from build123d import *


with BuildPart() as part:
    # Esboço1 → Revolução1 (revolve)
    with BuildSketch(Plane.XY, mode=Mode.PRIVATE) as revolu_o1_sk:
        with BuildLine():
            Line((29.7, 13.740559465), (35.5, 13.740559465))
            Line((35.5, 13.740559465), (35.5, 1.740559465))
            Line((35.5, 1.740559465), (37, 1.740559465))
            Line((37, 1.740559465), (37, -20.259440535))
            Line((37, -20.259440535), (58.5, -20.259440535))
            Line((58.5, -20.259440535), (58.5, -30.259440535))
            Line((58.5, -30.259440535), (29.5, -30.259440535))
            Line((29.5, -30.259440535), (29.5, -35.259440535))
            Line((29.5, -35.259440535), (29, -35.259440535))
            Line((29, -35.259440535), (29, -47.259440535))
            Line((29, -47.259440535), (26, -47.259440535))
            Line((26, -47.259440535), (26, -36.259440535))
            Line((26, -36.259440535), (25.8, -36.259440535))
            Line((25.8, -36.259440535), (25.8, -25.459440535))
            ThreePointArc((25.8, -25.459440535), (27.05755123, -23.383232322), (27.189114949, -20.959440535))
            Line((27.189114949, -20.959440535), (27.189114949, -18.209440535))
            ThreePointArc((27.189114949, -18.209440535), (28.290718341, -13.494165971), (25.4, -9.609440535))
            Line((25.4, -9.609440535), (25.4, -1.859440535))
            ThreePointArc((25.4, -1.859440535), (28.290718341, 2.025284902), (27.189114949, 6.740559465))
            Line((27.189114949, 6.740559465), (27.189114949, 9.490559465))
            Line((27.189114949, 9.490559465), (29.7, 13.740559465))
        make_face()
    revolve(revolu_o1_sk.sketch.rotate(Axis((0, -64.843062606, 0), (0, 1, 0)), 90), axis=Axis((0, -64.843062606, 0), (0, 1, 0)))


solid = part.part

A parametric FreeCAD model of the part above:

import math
import FreeCAD as App
import Part
import Sketcher
from FreeCAD import Vector

doc = App.newDocument("Part")
params = doc.addObject("Spreadsheet::Sheet", "Params")
for row, (alias, value) in enumerate([
    ("sketch1_radius", "5 mm"),
    ("sketch1_width", "3 mm"),
    ("sketch1_width2", "29 mm"),
    ("sketch1_height", "11 mm"),
    ("sketch1_height2", "12 mm"),
    ("revolution_angle", "360 deg"),
], start=1):
    params.set(f"A{row}", alias)
    params.set(f"B{row}", "=" + value)
    params.setAlias(f"B{row}", alias)

body = doc.addObject("PartDesign::Body", "Body")

# Sketch on XY plane
sketch1 = body.newObject("Sketcher::SketchObject", "Sketch")
sketch1.AttachmentSupport = (doc.getObject("XY_Plane"), [""])
sketch1.MapMode = "FlatFace"
sketch1.addGeometry([
    Part.LineSegment(Vector(35.5, 13.74, 0), Vector(29.7, 13.74, 0)),  # 0
    Part.LineSegment(Vector(29.7, 13.74, 0), Vector(27.19, 9.49, 0)),  # 1
    Part.LineSegment(Vector(27.19, 9.49, 0), Vector(27.19, 6.74, 0)),  # 2
    Part.ArcOfCircle(Part.Circle(Vector(22.66, 3.2, 0), Vector(0, 0, 1), 5.75), math.radians(-62), math.radians(38)),  # 3
    Part.LineSegment(Vector(25.4, -1.86, 0), Vector(25.4, -9.61, 0)),  # 4
    Part.ArcOfCircle(Part.Circle(Vector(22.66, -14.67, 0), Vector(0, 0, 1), 5.75), math.radians(-38), math.radians(62)),  # 5
    Part.LineSegment(Vector(27.19, -18.21, 0), Vector(27.19, -20.96, 0)),  # 6
    Part.ArcOfCircle(Part.Circle(Vector(22.28, -21.91, 0), Vector(0, 0, 1), 5), math.radians(-45), math.radians(11)),  # 7
    Part.LineSegment(Vector(25.8, -25.46, 0), Vector(25.8, -36.26, 0)),  # 8
    Part.LineSegment(Vector(25.8, -36.26, 0), Vector(26, -36.26, 0)),  # 9
    Part.LineSegment(Vector(26, -36.26, 0), Vector(26, -47.26, 0)),  # 10
    Part.LineSegment(Vector(26, -47.26, 0), Vector(29, -47.26, 0)),  # 11
    Part.LineSegment(Vector(29, -47.26, 0), Vector(29, -35.26, 0)),  # 12
    Part.LineSegment(Vector(29, -35.26, 0), Vector(29.5, -35.26, 0)),  # 13
    Part.LineSegment(Vector(29.5, -35.26, 0), Vector(29.5, -30.26, 0)),  # 14
    Part.LineSegment(Vector(29.5, -30.26, 0), Vector(58.5, -30.26, 0)),  # 15
    Part.LineSegment(Vector(58.5, -30.26, 0), Vector(58.5, -20.26, 0)),  # 16
    Part.LineSegment(Vector(58.5, -20.26, 0), Vector(37, -20.26, 0)),  # 17
    Part.LineSegment(Vector(37, -20.26, 0), Vector(37, 1.74, 0)),  # 18
    Part.LineSegment(Vector(37, 1.74, 0), Vector(35.5, 1.74, 0)),  # 19
    Part.LineSegment(Vector(35.5, 1.74, 0), Vector(35.5, 13.74, 0)),  # 20
], False)
sketch1.addConstraint([
    Sketcher.Constraint("Coincident", 0, 2, 1, 1),
    Sketcher.Constraint("Coincident", 1, 2, 2, 1),
    Sketcher.Constraint("Coincident", 2, 2, 3, 2),
    Sketcher.Constraint("Coincident", 3, 1, 4, 1),
    Sketcher.Constraint("Coincident", 4, 2, 5, 2),
    Sketcher.Constraint("Coincident", 5, 1, 6, 1),
    Sketcher.Constraint("Coincident", 6, 2, 7, 2),
    Sketcher.Constraint("Coincident", 7, 1, 8, 1),
    Sketcher.Constraint("Coincident", 8, 2, 9, 1),
    Sketcher.Constraint("Coincident", 9, 2, 10, 1),
    Sketcher.Constraint("Coincident", 10, 2, 11, 1),
    Sketcher.Constraint("Coincident", 11, 2, 12, 1),
    Sketcher.Constraint("Coincident", 12, 2, 13, 1),
    Sketcher.Constraint("Coincident", 13, 2, 14, 1),
    Sketcher.Constraint("Coincident", 14, 2, 15, 1),
    Sketcher.Constraint("Coincident", 15, 2, 16, 1),
    Sketcher.Constraint("Coincident", 16, 2, 17, 1),
    Sketcher.Constraint("Coincident", 17, 2, 18, 1),
    Sketcher.Constraint("Coincident", 18, 2, 19, 1),
    Sketcher.Constraint("Coincident", 19, 2, 20, 1),
    Sketcher.Constraint("Coincident", 20, 2, 0, 1),
    Sketcher.Constraint("Horizontal", 0),
    Sketcher.Constraint("Vertical", 2),
    Sketcher.Constraint("Vertical", 4),
    Sketcher.Constraint("Vertical", 6),
    Sketcher.Constraint("Vertical", 8),
    Sketcher.Constraint("Horizontal", 9),
    Sketcher.Constraint("Vertical", 10),
    Sketcher.Constraint("Horizontal", 11),
    Sketcher.Constraint("Vertical", 12),
    Sketcher.Constraint("Horizontal", 13),
    Sketcher.Constraint("Vertical", 14),
    Sketcher.Constraint("Horizontal", 15),
    Sketcher.Constraint("Vertical", 16),
    Sketcher.Constraint("Horizontal", 17),
    Sketcher.Constraint("Vertical", 18),
    Sketcher.Constraint("Horizontal", 19),
    Sketcher.Constraint("Vertical", 20),
    Sketcher.Constraint("Equal", 3, 5),
    Sketcher.Constraint("Vertical", 3, 3, 5, 3),
    Sketcher.Constraint("Vertical", 2, 2, 5, 1),
    Sketcher.Constraint("Equal", 2, 6),
    Sketcher.Constraint("Equal", 12, 20),
    Sketcher.Constraint("Radius", 7, 5.0),
    Sketcher.Constraint("DistanceX", 11, 1, 11, 2, 3.0),
    Sketcher.Constraint("DistanceX", 15, 1, 15, 2, 29.0),
    Sketcher.Constraint("DistanceY", 10, 2, 10, 1, 11.0),
    Sketcher.Constraint("DistanceY", 12, 1, 12, 2, 12.0),
    Sketcher.Constraint("DistanceY", 14, 1, 14, 2, 5.0),
    Sketcher.Constraint("DistanceY", 16, 1, 16, 2, 10.0),
    Sketcher.Constraint("DistanceY", 18, 1, 18, 2, 22.0),
    Sketcher.Constraint("Radius", 3, 5.75),
    Sketcher.Constraint("DistanceX", 0, 2, 0, 1, 5.8),
    Sketcher.Constraint("DistanceX", 9, 1, 9, 2, 0.2),
    Sketcher.Constraint("DistanceX", 13, 1, 13, 2, 0.5),
    Sketcher.Constraint("DistanceX", 17, 2, 17, 1, 21.5),
    Sketcher.Constraint("DistanceX", 19, 2, 19, 1, 1.5),
    Sketcher.Constraint("DistanceY", 8, 2, 8, 1, 10.8),
    Sketcher.Constraint("DistanceX", -1, 1, 9, 2, 26.0),
    Sketcher.Constraint("DistanceY", 2, 2, 0, 2, 7.0),
    Sketcher.Constraint("DistanceY", 2, 2, 2, 1, 2.75),
    Sketcher.Constraint("DistanceY", 4, 2, 4, 1, 7.75),
    Sketcher.Constraint("DistanceX", -1, 1, 3, 1, 25.4),
    Sketcher.Constraint("DistanceY", 3, 1, 2, 2, 8.6),
    Sketcher.Constraint("DistanceX", -1, 1, 7, 3, 22.280001),
    Sketcher.Constraint("DistanceY", -1, 1, 3, 3, 3.196421),
])
sketch1.setExpression("Constraints[43]", "Params.sketch1_radius")
sketch1.setExpression("Constraints[44]", "Params.sketch1_width")
sketch1.setExpression("Constraints[45]", "Params.sketch1_width2")
sketch1.setExpression("Constraints[46]", "Params.sketch1_height")
sketch1.setExpression("Constraints[47]", "Params.sketch1_height2")
revolution = body.newObject("PartDesign::Revolution", "Revolution")
revolution.Profile = sketch1
revolution.ReferenceAxis = (sketch1, ["V_Axis"])
revolution.setExpression("Angle", "Params.revolution_angle")

doc.recompute()
